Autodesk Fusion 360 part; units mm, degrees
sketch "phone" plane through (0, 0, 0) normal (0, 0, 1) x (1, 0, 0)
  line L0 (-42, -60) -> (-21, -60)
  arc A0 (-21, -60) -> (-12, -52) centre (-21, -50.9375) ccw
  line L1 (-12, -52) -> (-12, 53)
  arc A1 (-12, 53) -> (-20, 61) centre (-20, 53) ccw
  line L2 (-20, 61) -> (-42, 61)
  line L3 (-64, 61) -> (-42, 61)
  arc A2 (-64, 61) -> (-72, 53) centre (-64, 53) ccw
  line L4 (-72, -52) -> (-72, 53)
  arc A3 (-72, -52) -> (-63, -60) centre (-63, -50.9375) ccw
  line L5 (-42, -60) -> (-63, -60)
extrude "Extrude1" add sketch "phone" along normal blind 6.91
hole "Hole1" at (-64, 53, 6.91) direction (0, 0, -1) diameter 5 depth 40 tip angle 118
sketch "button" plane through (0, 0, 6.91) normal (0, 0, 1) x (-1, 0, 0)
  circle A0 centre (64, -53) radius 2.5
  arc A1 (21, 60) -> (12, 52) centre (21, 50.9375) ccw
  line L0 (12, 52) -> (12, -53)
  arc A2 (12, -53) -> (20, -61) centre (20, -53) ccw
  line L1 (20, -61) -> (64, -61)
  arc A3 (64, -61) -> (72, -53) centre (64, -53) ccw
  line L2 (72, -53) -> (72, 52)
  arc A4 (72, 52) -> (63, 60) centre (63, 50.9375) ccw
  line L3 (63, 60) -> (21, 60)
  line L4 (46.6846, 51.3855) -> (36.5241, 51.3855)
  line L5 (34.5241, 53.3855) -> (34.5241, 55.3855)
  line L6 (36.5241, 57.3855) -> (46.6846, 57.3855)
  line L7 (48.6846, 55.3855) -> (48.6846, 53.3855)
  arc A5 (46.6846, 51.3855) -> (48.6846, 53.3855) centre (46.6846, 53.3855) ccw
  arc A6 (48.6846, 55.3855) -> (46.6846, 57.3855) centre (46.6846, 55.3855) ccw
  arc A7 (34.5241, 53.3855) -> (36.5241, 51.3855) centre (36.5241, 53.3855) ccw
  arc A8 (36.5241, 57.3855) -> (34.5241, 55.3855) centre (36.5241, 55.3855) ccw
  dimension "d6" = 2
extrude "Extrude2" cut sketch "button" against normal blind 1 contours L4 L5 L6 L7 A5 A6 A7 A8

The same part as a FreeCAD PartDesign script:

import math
import FreeCAD as App
import Part
import Sketcher
from FreeCAD import Vector

doc = App.newDocument("Part")
body = doc.addObject("PartDesign::Body", "Body")

sketch1 = body.newObject("Sketcher::SketchObject", "Sketch")
sketch1.AttachmentSupport = (doc.getObject("XY_Plane"), [""])
sketch1.MapMode = "FlatFace"
sketch1.addGeometry(Part.LineSegment(Vector(-63, -60, 0), Vector(-21, -60, 0)), False)
sketch1.addGeometry(Part.ArcOfCircle(Part.Circle(Vector(-21, -50.9375, 0), Vector(0, 0, 1), 9.0625), math.radians(-90), math.radians(-6.732921)), False)
sketch1.addGeometry(Part.LineSegment(Vector(-12, -52, 0), Vector(-12, 53, 0)), False)
sketch1.addGeometry(Part.ArcOfCircle(Part.Circle(Vector(-20, 53, 0), Vector(0, 0, 1), 8), math.radians(0), math.radians(90)), False)
sketch1.addGeometry(Part.LineSegment(Vector(-20, 61, 0), Vector(-64, 61, 0)), False)
sketch1.addGeometry(Part.ArcOfCircle(Part.Circle(Vector(-64, 53, 0), Vector(0, 0, 1), 8), math.radians(90), math.radians(180)), False)
sketch1.addGeometry(Part.LineSegment(Vector(-72, 53, 0), Vector(-72, -52, 0)), False)
sketch1.addGeometry(Part.ArcOfCircle(Part.Circle(Vector(-63, -50.9375, 0), Vector(0, 0, 1), 9.0625), math.radians(-173.267079), math.radians(-90)), False)
sketch1.addConstraint(Sketcher.Constraint("Tangent", 0, 2, 1, 1))
sketch1.addConstraint(Sketcher.Constraint("Coincident", 1, 2, 2, 1))
sketch1.addConstraint(Sketcher.Constraint("Tangent", 2, 2, 3, 1))
sketch1.addConstraint(Sketcher.Constraint("Tangent", 3, 2, 4, 1))
sketch1.addConstraint(Sketcher.Constraint("Tangent", 4, 2, 5, 1))
sketch1.addConstraint(Sketcher.Constraint("Tangent", 5, 2, 6, 1))
sketch1.addConstraint(Sketcher.Constraint("Coincident", 6, 2, 7, 1))
sketch1.addConstraint(Sketcher.Constraint("Tangent", 7, 2, 0, 1))
sketch1.addConstraint(Sketcher.Constraint("Horizontal", 0))
sketch1.addConstraint(Sketcher.Constraint("Vertical", 2))
sketch1.addConstraint(Sketcher.Constraint("Horizontal", 4))
sketch1.addConstraint(Sketcher.Constraint("Vertical", 6))
sketch1.addConstraint(Sketcher.Constraint("Equal", 3, 5))
sketch1.addConstraint(Sketcher.Constraint("Equal", 1, 7))
sketch1.addConstraint(Sketcher.Constraint("Horizontal", 1, 2, 6, 2))
sketch1.addConstraint(Sketcher.Constraint("Radius", 3, 8.0))
sketch1.addConstraint(Sketcher.Constraint("DistanceX", 0, 1, 0, 2, 42.0))
sketch1.addConstraint(Sketcher.Constraint("DistanceX", 4, 2, 4, 1, 44.0))
sketch1.addConstraint(Sketcher.Constraint("DistanceY", 2, 1, 2, 2, 105.0))
sketch1.addConstraint(Sketcher.Constraint("DistanceX", 1, 3, -1, 1, 21.0))
sketch1.addConstraint(Sketcher.Constraint("DistanceY", -1, 1, 3, 3, 53.0))
sketch1.addConstraint(Sketcher.Constraint("DistanceY", 0, 2, -1, 1, 60.0))
pad1 = body.newObject("PartDesign::Pad", "Pad")
pad1.Profile = sketch1
pad1.Length = 6.91

sketch2 = body.newObject("Sketcher::SketchObject", "Sketch001")
sketch2.AttachmentSupport = (doc.getObject("XY_Plane"), [""])
sketch2.MapMode = "FlatFace"
sketch2.AttachmentOffset = App.Placement(Vector(0, 0, 6.91), App.Rotation())
sketch2.addGeometry(Part.Circle(Vector(-64, 53, 0), Vector(0, 0, 1), 2.5), False)
sketch2.addConstraint(Sketcher.Constraint("Diameter", 0, 5.0))
sketch2.addConstraint(Sketcher.Constraint("DistanceX", 0, 3, -1, 1, 64.0))
sketch2.addConstraint(Sketcher.Constraint("DistanceY", -1, 1, 0, 3, 53.0))
doc.recompute()
hole = body.newObject("PartDesign::Hole", "Hole")
hole.Profile = sketch2
hole.ThreadType = "None"
hole.Diameter = 5
hole.DepthType = "Dimension"
hole.Depth = 40
hole.DrillPoint = "Angled"
hole.DrillPointAngle = 118

sketch3 = body.newObject("Sketcher::SketchObject", "Sketch002")
sketch3.AttachmentSupport = (doc.getObject("XY_Plane"), [""])
sketch3.MapMode = "FlatFace"
sketch3.AttachmentOffset = App.Placement(Vector(0, 0, 6.91), App.Rotation())
sketch3.addGeometry(Part.LineSegment(Vector(-36.5241, -51.3855, 0), Vector(-46.6846, -51.3855, 0)), False)
sketch3.addGeometry(Part.ArcOfCircle(Part.Circle(Vector(-46.6846, -53.3855, 0), Vector(0, 0, 1), 2), math.radians(90), math.radians(180)), False)
sketch3.addGeometry(Part.LineSegment(Vector(-48.6846, -53.3855, 0), Vector(-48.6846, -55.3855, 0)), False)
sketch3.addGeometry(Part.ArcOfCircle(Part.Circle(Vector(-46.6846, -55.3855, 0), Vector(0, 0, 1), 2), math.radians(180), math.radians(270)), False)
sketch3.addGeometry(Part.LineSegment(Vector(-46.6846, -57.3855, 0), Vector(-36.5241, -57.3855, 0)), False)
sketch3.addGeometry(Part.ArcOfCircle(Part.Circle(Vector(-36.5241, -55.3855, 0), Vector(0, 0, 1), 2), math.radians(-90), math.radians(0)), False)
sketch3.addGeometry(Part.LineSegment(Vector(-34.5241, -55.3855, 0), Vector(-34.5241, -53.3855, 0)), False)
sketch3.addGeometry(Part.ArcOfCircle(Part.Circle(Vector(-36.5241, -53.3855, 0), Vector(0, 0, 1), 2), math.radians(0), math.radians(90)), False)
sketch3.addConstraint(Sketcher.Constraint("Tangent", 0, 2, 1, 1))
sketch3.addConstraint(Sketcher.Constraint("Tangent", 1, 2, 2, 1))
sketch3.addConstraint(Sketcher.Constraint("Tangent", 2, 2, 3, 1))
sketch3.addConstraint(Sketcher.Constraint("Tangent", 3, 2, 4, 1))
sketch3.addConstraint(Sketcher.Constraint("Tangent", 4, 2, 5, 1))
sketch3.addConstraint(Sketcher.Constraint("Tangent", 5, 2, 6, 1))
sketch3.addConstraint(Sketcher.Constraint("Tangent", 6, 2, 7, 1))
sketch3.addConstraint(Sketcher.Constraint("Tangent", 7, 2, 0, 1))
sketch3.addConstraint(Sketcher.Constraint("Horizontal", 0))
sketch3.addConstraint(Sketcher.Constraint("Vertical", 2))
sketch3.addConstraint(Sketcher.Constraint("Horizontal", 4))
sketch3.addConstraint(Sketcher.Constraint("Vertical", 6))
sketch3.addConstraint(Sketcher.Constraint("Equal", 1, 3))
sketch3.addConstraint(Sketcher.Constraint("Equal", 3, 5))
sketch3.addConstraint(Sketcher.Constraint("Equal", 5, 7))
sketch3.addConstraint(Sketcher.Constraint("Radius", 1, 2.0))
sketch3.addConstraint(Sketcher.Constraint("DistanceY", 2, 2, 2, 1, 2.0))
sketch3.addConstraint(Sketcher.Constraint("DistanceX", 0, 2, 0, 1, 10.1605))
sketch3.addConstraint(Sketcher.Constraint("DistanceX", 5, 3, -1, 1, 36.524))
sketch3.addConstraint(Sketcher.Constraint("DistanceY", 1, 3, -1, 1, 53.3855))
pocket1 = body.newObject("PartDesign::Pocket", "Pocket")
pocket1.Profile = sketch3
pocket1.Length = 1

doc.recompute()
